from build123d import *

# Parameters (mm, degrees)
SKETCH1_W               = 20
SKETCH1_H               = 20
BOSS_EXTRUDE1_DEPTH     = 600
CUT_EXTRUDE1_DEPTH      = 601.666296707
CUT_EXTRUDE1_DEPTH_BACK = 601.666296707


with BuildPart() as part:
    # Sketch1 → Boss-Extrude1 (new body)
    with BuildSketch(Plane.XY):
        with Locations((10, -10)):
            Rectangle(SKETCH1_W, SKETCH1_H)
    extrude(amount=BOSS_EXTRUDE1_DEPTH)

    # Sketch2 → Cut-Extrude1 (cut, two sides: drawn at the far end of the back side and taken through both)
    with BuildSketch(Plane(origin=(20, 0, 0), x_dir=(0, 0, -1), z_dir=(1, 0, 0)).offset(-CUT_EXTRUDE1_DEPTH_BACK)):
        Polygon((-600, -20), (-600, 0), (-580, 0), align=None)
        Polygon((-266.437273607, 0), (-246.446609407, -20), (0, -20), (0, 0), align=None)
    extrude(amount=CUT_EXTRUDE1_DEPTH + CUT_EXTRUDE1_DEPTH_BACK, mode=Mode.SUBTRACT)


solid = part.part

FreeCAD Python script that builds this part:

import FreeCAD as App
import Part
import Sketcher
from FreeCAD import Vector
Q = App.Units.Quantity

doc = App.newDocument("Part")
body = doc.addObject("PartDesign::Body", "Body")

# Sketch on XY plane
sketch1 = body.newObject("Sketcher::SketchObject", "Sketch")
sketch1.AttachmentSupport = (doc.getObject("XY_Plane"), [""])
sketch1.MapMode = "FlatFace"
sketch1.addGeometry(Part.LineSegment(Vector(0, 0, 0), Vector(0, -20, 0)), False)
sketch1.addGeometry(Part.LineSegment(Vector(0, -20, 0), Vector(20, -20, 0)), False)
sketch1.addGeometry(Part.LineSegment(Vector(20, -20, 0), Vector(20, 0, 0)), False)
sketch1.addGeometry(Part.LineSegment(Vector(20, 0, 0), Vector(0, 0, 0)), False)
sketch1.addConstraint(Sketcher.Constraint("Coincident", 0, 2, 1, 1))
sketch1.addConstraint(Sketcher.Constraint("Coincident", 1, 2, 2, 1))
sketch1.addConstraint(Sketcher.Constraint("Coincident", 2, 2, 3, 1))
sketch1.addConstraint(Sketcher.Constraint("Coincident", 3, 2, 0, 1))
sketch1.addConstraint(Sketcher.Constraint("Vertical", 0))
sketch1.addConstraint(Sketcher.Constraint("Horizontal", 1))
sketch1.addConstraint(Sketcher.Constraint("Vertical", 2))
sketch1.addConstraint(Sketcher.Constraint("Horizontal", 3))
sketch1.addConstraint(Sketcher.Constraint("Coincident", 3, 2, -1, 1))
sketch1.addConstraint(Sketcher.Constraint("Equal", 3, 0))
sketch1.addConstraint(Sketcher.Constraint("DistanceX", 1, 1, 1, 2, Q("20 mm")))
pad1 = body.newObject("PartDesign::Pad", "Pad")
pad1.Profile = sketch1
pad1.Length = 600

# Sketch on YZ plane
sketch2 = body.newObject("Sketcher::SketchObject", "Sketch001")
sketch2.AttachmentSupport = (doc.getObject("YZ_Plane"), [""])
sketch2.MapMode = "FlatFace"
sketch2.AttachmentOffset = App.Placement(Vector(0, 0, 20), App.Rotation())
sketch2.addGeometry(Part.LineSegment(Vector(0, 600, 0), Vector(-20, 600, 0)), False)
sketch2.addGeometry(Part.LineSegment(Vector(-20, 600, 0), Vector(0, 580, 0)), False)
sketch2.addGeometry(Part.LineSegment(Vector(0, 580, 0), Vector(0, 600, 0)), False)
sketch2.addGeometry(Part.LineSegment(Vector(0, 266, 0), Vector(-20, 246, 0)), False)
sketch2.addGeometry(Part.LineSegment(Vector(-20, 246, 0), Vector(-20, 0, 0)), False)
sketch2.addGeometry(Part.LineSegment(Vector(-20, 0, 0), Vector(0, 0, 0)), False)
sketch2.addGeometry(Part.LineSegment(Vector(0, 0, 0), Vector(0, 266, 0)), False)
sketch2.addConstraint(Sketcher.Constraint("Coincident", 0, 2, 1, 1))
sketch2.addConstraint(Sketcher.Constraint("Coincident", 1, 2, 2, 1))
sketch2.addConstraint(Sketcher.Constraint("Coincident", 2, 2, 0, 1))
sketch2.addConstraint(Sketcher.Constraint("Coincident", 3, 2, 4, 1))
sketch2.addConstraint(Sketcher.Constraint("Coincident", 4, 2, 5, 1))
sketch2.addConstraint(Sketcher.Constraint("Coincident", 5, 2, 6, 1))
sketch2.addConstraint(Sketcher.Constraint("Coincident", 6, 2, 3, 1))
sketch2.addConstraint(Sketcher.Constraint("Horizontal", 0))
sketch2.addConstraint(Sketcher.Constraint("Vertical", 2))
sketch2.addConstraint(Sketcher.Constraint("Vertical", 4))
sketch2.addConstraint(Sketcher.Constraint("Horizontal", 5))
sketch2.addConstraint(Sketcher.Constraint("Vertical", 6))
sketch2.addConstraint(Sketcher.Constraint("Coincident", 5, 2, -1, 1))
sketch2.addConstraint(Sketcher.Constraint("PointOnObject", 1, 2, -2))
sketch2.addConstraint(Sketcher.Constraint("Vertical", 0, 2, 3, 2))
sketch2.addConstraint(Sketcher.Constraint("Equal", 5, 2))
sketch2.addConstraint(Sketcher.Constraint("DistanceX", 0, 2, 0, 1, Q("20 mm")))
sketch2.addConstraint(Sketcher.Constraint("DistanceY", -1, 1, 0, 2, Q("600 mm")))
sketch2.addConstraint(Sketcher.Constraint("DistanceY", 4, 2, 4, 1, Q("246.446609 mm")))
sketch2.addConstraint(Sketcher.Constraint("Distance", 3, Q("28.277671 mm")))
pocket1 = body.newObject("PartDesign::Pocket", "Pocket")
pocket1.Profile = sketch2
pocket1.Type = "ThroughAll"
pocket1.Midplane = True

doc.recompute()
